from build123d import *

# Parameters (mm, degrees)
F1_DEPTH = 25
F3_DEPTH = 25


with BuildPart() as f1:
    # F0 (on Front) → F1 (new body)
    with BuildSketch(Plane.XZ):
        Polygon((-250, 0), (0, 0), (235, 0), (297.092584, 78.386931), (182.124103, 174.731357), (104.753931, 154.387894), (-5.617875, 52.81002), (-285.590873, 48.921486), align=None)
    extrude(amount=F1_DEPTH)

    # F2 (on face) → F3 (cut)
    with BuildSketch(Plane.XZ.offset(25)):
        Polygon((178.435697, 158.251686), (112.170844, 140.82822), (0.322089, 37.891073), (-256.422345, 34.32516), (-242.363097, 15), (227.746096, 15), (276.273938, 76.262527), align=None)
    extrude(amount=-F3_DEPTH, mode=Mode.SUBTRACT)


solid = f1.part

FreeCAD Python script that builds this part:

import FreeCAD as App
import Part
import Sketcher

doc = App.newDocument("Part")
body = doc.addObject("PartDesign::Body", "Body")

# Sketch on XZ plane
sketch1 = body.newObject("Sketcher::SketchObject", "Sketch")
sketch1.AttachmentSupport = (doc.getObject("XZ_Plane"), [""])
sketch1.MapMode = "FlatFace"
sketch1.addGeometry(Part.LineSegment(App.Vector(-250, 0, 0), App.Vector(235, 0, 0)), False)
sketch1.addGeometry(Part.LineSegment(App.Vector(235, 0, 0), App.Vector(297, 78, 0)), False)
sketch1.addGeometry(Part.LineSegment(App.Vector(297, 78, 0), App.Vector(182, 175, 0)), False)
sketch1.addGeometry(Part.LineSegment(App.Vector(182, 175, 0), App.Vector(105, 154, 0)), False)
sketch1.addGeometry(Part.LineSegment(App.Vector(105, 154, 0), App.Vector(-6, 53, 0)), False)
sketch1.addGeometry(Part.LineSegment(App.Vector(-6, 53, 0), App.Vector(-286, 49, 0)), False)
sketch1.addGeometry(Part.LineSegment(App.Vector(-286, 49, 0), App.Vector(-250, 0, 0)), False)
sketch1.addConstraint(Sketcher.Constraint("Coincident", 0, 2, 1, 1))
sketch1.addConstraint(Sketcher.Constraint("Coincident", 1, 2, 2, 1))
sketch1.addConstraint(Sketcher.Constraint("Coincident", 2, 2, 3, 1))
sketch1.addConstraint(Sketcher.Constraint("Coincident", 3, 2, 4, 1))
sketch1.addConstraint(Sketcher.Constraint("Coincident", 4, 2, 5, 1))
sketch1.addConstraint(Sketcher.Constraint("Coincident", 5, 2, 6, 1))
sketch1.addConstraint(Sketcher.Constraint("Coincident", 6, 2, 0, 1))
sketch1.addConstraint(Sketcher.Constraint("Horizontal", 0))
sketch1.addConstraint(Sketcher.Constraint("PointOnObject", 0, 2, -1))
sketch1.addConstraint(Sketcher.Constraint("Equal", 2, 4))
sketch1.addConstraint(Sketcher.Constraint("DistanceX", 0, 1, 0, 2, 485.0))
sketch1.addConstraint(Sketcher.Constraint("Distance", 1, 100.0))
sketch1.addConstraint(Sketcher.Constraint("Distance", 2, 150.0))
sketch1.addConstraint(Sketcher.Constraint("Distance", 3, 80.0))
sketch1.addConstraint(Sketcher.Constraint("Distance", 5, 280.000001))
sketch1.addConstraint(Sketcher.Constraint("DistanceX", -1, 1, 0, 2, 235.0))
sketch1.addConstraint(Sketcher.Constraint("DistanceY", -1, 1, 1, 2, 78.386931))
sketch1.addConstraint(Sketcher.Constraint("DistanceX", -1, 1, 3, 2, 104.753931))
sketch1.addConstraint(Sketcher.Constraint("DistanceY", -1, 1, 4, 2, 52.81002))
sketch1.addConstraint(Sketcher.Constraint("DistanceX", 2, 2, 1, 2, 114.968481))
sketch1.addConstraint(Sketcher.Constraint("DistanceY", 5, 2, 2, 2, 125.809871))
pad1 = body.newObject("PartDesign::Pad", "Pad")
pad1.Profile = sketch1
pad1.Length = 25

# Sketch on XZ plane
sketch2 = body.newObject("Sketcher::SketchObject", "Sketch001")
sketch2.AttachmentSupport = (doc.getObject("XZ_Plane"), [""])
sketch2.MapMode = "FlatFace"
sketch2.AttachmentOffset = App.Placement(App.Vector(0, 0, 25), App.Rotation())
sketch2.addGeometry(Part.LineSegment(App.Vector(178, 158, 0), App.Vector(112, 141, 0)), False)
sketch2.addGeometry(Part.LineSegment(App.Vector(112, 141, 0), App.Vector(0, 38, 0)), False)
sketch2.addGeometry(Part.LineSegment(App.Vector(0, 38, 0), App.Vector(-256, 34, 0)), False)
sketch2.addGeometry(Part.LineSegment(App.Vector(-256, 34, 0), App.Vector(-242, 15, 0)), False)
sketch2.addGeometry(Part.LineSegment(App.Vector(-242, 15, 0), App.Vector(228, 15, 0)), False)
sketch2.addGeometry(Part.LineSegment(App.Vector(228, 15, 0), App.Vector(276, 76, 0)), False)
sketch2.addGeometry(Part.LineSegment(App.Vector(276, 76, 0), App.Vector(178, 158, 0)), False)
sketch2.addConstraint(Sketcher.Constraint("Coincident", 0, 2, 1, 1))
sketch2.addConstraint(Sketcher.Constraint("Coincident", 1, 2, 2, 1))
sketch2.addConstraint(Sketcher.Constraint("Coincident", 2, 2, 3, 1))
sketch2.addConstraint(Sketcher.Constraint("Coincident", 3, 2, 4, 1))
sketch2.addConstraint(Sketcher.Constraint("Coincident", 4, 2, 5, 1))
sketch2.addConstraint(Sketcher.Constraint("Coincident", 5, 2, 6, 1))
sketch2.addConstraint(Sketcher.Constraint("Coincident", 6, 2, 0, 1))
sketch2.addConstraint(Sketcher.Constraint("Horizontal", 4))
sketch2.addConstraint(Sketcher.Constraint("DistanceY", -1, 1, 3, 2, 15.0))
sketch2.addConstraint(Sketcher.Constraint("DistanceX", 6, 2, 4, 2, 49.310399))
sketch2.addConstraint(Sketcher.Constraint("Distance", 0, 68.517209))
sketch2.addConstraint(Sketcher.Constraint("DistanceX", 4, 1, 4, 2, 470.109193))
sketch2.addConstraint(Sketcher.Constraint("DistanceY", -1, 1, 0, 2, 140.82822))
sketch2.addConstraint(Sketcher.Constraint("DistanceX", -1, 1, 1, 2, 0.322089))
sketch2.addConstraint(Sketcher.Constraint("DistanceY", -1, 1, 2, 2, 34.32516))
sketch2.addConstraint(Sketcher.Constraint("DistanceX", -1, 1, 5, 2, 276.273938))
sketch2.addConstraint(Sketcher.Constraint("DistanceX", 2, 2, 0, 2, 368.593189))
sketch2.addConstraint(Sketcher.Constraint("DistanceX", 3, 2, 0, 2, 354.533941))
sketch2.addConstraint(Sketcher.Constraint("DistanceX", 4, 2, 5, 2, 48.527842))
sketch2.addConstraint(Sketcher.Constraint("DistanceY", 5, 2, 6, 2, 81.989159))
sketch2.addConstraint(Sketcher.Constraint("Distance", 1, 152.007237))
pocket1 = body.newObject("PartDesign::Pocket", "Pocket")
pocket1.Profile = sketch2
pocket1.Length = 25

doc.recompute()
